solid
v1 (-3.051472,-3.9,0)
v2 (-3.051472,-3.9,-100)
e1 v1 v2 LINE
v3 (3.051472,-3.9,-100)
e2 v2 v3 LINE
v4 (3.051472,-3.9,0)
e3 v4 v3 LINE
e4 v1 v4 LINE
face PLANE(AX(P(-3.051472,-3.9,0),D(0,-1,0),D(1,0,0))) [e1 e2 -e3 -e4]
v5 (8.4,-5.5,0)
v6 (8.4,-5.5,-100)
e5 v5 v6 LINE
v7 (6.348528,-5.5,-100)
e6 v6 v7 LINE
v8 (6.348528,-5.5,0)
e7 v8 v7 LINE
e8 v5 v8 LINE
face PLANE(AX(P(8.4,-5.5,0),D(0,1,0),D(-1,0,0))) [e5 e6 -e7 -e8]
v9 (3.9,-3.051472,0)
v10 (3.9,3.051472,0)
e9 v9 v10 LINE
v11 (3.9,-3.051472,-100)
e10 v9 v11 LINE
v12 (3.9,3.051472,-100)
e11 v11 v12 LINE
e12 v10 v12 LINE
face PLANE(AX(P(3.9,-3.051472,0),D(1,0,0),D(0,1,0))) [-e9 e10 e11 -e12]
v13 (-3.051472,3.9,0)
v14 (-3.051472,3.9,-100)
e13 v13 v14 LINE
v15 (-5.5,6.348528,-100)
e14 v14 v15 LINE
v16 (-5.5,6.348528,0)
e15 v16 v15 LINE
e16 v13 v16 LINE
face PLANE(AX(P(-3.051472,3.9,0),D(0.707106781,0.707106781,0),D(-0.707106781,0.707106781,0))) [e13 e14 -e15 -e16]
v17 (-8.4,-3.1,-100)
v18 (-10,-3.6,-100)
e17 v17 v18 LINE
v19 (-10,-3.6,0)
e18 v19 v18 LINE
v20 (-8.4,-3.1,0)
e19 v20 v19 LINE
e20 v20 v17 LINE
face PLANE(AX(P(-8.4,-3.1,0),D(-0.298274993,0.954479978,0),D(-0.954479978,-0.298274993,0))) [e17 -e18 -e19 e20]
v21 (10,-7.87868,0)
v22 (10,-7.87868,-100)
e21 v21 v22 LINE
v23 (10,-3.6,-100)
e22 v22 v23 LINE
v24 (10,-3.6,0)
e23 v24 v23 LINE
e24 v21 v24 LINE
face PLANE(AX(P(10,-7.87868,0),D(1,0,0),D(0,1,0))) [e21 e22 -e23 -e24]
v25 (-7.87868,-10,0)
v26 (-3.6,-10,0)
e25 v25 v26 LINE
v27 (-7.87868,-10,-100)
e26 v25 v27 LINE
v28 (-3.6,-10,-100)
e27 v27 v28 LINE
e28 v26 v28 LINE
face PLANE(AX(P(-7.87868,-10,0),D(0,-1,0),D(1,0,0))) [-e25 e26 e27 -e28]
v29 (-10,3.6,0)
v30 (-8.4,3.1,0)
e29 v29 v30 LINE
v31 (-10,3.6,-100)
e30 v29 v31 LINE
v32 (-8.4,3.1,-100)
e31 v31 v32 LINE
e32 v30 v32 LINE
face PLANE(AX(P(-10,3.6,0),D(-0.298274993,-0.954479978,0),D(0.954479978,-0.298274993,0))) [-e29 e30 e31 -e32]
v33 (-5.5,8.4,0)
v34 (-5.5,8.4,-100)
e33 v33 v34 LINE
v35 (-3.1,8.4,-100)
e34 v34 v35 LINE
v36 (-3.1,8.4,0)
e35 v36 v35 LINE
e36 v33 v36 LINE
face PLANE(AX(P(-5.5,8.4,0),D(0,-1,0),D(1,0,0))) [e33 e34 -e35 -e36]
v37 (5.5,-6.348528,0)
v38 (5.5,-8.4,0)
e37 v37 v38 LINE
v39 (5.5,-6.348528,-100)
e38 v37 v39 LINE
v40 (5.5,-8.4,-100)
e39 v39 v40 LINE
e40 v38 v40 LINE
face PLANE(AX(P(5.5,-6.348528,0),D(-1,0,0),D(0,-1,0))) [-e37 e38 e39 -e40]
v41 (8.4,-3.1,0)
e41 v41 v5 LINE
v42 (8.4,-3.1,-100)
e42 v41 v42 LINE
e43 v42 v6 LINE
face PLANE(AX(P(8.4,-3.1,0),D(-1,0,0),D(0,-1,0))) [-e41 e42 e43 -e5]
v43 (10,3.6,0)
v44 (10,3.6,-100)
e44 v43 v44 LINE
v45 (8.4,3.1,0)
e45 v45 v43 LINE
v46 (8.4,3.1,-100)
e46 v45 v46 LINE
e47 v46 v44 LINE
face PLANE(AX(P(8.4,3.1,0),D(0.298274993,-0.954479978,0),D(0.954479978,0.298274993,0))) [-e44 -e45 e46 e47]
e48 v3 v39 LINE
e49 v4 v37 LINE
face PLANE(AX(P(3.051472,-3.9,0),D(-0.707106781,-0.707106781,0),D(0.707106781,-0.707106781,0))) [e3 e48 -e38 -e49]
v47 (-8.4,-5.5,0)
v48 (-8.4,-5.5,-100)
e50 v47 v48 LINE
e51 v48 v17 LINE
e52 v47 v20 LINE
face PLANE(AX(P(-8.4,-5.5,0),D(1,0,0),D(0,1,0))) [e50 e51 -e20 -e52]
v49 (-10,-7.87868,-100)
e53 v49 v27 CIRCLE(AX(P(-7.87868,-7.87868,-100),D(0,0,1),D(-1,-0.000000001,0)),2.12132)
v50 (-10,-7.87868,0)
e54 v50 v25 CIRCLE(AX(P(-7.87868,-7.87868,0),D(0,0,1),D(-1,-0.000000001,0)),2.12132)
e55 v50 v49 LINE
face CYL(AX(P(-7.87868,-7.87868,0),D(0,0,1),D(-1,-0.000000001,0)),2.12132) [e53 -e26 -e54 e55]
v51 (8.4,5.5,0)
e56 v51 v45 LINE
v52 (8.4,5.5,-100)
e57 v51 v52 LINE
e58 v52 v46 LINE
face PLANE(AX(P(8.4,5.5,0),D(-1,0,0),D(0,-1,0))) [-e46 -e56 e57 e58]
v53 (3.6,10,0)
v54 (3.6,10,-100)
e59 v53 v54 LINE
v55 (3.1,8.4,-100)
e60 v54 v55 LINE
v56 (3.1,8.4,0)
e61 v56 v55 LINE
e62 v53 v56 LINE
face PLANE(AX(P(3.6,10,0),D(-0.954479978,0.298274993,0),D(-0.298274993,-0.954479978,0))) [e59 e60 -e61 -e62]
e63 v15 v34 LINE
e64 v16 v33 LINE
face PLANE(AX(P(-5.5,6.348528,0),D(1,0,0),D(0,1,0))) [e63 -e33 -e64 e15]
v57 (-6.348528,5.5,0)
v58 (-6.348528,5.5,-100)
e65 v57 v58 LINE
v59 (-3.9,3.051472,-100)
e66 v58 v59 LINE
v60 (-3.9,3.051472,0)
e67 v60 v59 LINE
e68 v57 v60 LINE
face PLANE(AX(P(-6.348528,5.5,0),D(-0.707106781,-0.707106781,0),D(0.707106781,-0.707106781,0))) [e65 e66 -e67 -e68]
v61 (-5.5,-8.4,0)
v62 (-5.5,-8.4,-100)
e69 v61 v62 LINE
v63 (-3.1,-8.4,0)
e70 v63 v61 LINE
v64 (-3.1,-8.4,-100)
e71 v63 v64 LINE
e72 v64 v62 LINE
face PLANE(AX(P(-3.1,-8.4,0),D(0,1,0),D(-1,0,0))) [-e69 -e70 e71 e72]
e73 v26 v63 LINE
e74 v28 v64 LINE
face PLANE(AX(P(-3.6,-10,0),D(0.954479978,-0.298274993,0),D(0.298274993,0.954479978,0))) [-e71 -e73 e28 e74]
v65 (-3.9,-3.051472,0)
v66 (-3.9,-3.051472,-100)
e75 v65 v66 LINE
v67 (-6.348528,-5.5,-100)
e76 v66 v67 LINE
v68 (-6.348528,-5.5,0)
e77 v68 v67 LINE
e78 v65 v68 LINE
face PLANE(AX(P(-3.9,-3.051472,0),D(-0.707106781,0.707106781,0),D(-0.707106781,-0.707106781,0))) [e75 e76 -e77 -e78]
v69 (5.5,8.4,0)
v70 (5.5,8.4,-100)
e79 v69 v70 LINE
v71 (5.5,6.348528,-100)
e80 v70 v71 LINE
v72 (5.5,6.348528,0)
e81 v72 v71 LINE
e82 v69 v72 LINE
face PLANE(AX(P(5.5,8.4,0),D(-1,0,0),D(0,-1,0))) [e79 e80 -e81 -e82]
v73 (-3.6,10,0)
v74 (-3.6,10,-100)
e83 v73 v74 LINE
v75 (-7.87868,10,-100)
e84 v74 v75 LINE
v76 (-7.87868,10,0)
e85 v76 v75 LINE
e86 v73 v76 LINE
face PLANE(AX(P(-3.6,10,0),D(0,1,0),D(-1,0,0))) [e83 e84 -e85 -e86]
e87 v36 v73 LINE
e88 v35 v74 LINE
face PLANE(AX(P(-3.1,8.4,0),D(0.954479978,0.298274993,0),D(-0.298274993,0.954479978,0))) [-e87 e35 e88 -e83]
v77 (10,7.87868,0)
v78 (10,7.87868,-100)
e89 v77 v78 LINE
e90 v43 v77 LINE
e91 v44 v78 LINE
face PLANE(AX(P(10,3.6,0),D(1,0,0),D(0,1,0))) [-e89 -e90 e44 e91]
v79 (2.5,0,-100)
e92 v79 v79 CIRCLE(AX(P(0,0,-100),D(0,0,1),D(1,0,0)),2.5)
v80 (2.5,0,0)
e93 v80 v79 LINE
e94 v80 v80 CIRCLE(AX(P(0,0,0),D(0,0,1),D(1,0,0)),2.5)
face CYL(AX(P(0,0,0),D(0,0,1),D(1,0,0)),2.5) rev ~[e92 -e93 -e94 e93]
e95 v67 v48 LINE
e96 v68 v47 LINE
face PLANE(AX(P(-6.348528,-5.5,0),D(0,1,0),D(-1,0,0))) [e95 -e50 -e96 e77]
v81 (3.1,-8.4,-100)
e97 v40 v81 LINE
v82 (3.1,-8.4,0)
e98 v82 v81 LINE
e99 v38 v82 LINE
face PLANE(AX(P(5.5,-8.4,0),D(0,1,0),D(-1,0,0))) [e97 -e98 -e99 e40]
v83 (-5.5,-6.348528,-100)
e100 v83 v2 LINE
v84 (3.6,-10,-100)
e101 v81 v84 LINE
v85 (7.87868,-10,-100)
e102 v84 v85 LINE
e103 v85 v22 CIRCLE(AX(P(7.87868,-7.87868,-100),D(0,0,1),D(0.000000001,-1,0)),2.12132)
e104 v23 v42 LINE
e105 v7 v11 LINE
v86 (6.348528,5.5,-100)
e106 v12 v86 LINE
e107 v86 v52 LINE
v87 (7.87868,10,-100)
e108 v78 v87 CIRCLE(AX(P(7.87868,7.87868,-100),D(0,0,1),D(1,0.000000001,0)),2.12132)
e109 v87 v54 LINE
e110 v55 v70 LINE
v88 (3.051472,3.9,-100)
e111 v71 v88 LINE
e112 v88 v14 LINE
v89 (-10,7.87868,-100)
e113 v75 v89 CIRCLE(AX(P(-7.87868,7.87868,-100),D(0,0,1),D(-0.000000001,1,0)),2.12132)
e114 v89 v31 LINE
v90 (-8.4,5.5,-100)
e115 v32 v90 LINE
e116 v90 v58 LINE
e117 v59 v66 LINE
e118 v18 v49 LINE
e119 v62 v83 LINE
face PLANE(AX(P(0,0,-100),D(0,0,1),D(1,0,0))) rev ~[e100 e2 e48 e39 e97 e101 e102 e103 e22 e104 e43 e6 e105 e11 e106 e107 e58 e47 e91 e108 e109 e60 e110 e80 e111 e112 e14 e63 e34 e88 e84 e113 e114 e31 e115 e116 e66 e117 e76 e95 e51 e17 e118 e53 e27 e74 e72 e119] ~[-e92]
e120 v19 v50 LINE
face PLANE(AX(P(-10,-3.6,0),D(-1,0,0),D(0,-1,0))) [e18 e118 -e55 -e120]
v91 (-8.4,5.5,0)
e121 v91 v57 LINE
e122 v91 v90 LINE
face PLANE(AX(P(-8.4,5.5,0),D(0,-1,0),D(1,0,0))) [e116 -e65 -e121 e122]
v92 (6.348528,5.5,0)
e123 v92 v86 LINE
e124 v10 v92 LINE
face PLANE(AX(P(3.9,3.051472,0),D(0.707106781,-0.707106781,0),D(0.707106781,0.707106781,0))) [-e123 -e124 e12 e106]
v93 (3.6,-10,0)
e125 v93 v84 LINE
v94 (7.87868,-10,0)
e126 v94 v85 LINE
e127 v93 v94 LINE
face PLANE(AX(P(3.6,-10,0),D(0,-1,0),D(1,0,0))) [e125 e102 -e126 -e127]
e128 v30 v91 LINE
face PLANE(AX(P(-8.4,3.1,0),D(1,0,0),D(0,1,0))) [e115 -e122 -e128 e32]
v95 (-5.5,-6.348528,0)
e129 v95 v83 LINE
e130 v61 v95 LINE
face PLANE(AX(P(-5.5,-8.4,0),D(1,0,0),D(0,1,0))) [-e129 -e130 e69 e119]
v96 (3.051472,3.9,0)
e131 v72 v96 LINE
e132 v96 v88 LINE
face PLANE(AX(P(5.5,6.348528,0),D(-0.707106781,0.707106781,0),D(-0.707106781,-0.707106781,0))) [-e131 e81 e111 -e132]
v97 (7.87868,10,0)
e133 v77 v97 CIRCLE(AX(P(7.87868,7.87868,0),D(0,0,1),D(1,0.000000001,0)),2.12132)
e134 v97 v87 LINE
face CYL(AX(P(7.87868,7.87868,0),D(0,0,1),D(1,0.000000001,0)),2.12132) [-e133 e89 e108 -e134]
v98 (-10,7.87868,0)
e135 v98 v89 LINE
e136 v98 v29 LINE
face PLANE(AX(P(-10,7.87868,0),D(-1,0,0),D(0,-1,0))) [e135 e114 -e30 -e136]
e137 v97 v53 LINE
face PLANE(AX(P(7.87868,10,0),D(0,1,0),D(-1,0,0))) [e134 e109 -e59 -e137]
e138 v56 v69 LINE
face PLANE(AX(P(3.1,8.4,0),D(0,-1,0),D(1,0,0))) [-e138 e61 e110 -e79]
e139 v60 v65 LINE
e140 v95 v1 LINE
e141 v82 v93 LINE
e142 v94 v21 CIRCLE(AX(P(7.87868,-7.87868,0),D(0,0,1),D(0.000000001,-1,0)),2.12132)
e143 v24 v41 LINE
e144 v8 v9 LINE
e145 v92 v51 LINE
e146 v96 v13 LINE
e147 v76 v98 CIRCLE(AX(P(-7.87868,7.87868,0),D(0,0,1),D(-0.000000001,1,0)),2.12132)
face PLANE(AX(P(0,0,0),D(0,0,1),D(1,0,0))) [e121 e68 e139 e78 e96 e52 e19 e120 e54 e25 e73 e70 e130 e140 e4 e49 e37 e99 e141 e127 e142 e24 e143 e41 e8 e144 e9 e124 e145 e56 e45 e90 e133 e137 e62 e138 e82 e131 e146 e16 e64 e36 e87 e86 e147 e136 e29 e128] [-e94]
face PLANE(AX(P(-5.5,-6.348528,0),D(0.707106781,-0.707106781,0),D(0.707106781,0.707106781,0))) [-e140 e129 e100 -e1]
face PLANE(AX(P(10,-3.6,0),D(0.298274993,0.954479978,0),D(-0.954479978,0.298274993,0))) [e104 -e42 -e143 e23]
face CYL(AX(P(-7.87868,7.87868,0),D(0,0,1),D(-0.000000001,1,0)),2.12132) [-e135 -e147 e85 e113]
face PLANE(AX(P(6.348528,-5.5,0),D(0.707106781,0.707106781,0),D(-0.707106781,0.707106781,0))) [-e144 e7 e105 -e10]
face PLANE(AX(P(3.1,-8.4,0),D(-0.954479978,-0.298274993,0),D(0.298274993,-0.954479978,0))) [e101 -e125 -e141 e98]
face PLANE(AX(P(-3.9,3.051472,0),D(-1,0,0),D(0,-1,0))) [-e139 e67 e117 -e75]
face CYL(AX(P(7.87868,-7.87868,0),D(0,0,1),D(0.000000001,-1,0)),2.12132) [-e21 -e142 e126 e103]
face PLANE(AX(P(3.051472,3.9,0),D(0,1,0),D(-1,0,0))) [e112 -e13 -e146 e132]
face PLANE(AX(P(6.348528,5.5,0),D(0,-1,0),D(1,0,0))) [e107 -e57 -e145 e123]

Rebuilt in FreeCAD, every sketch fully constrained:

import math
import FreeCAD as App
import Part
import Sketcher

V = App.Vector
Q = App.Units.Quantity

doc = App.newDocument("Part")
body = doc.addObject("PartDesign::Body", "Body")

# Sketch on XY plane
sketch1 = body.newObject("Sketcher::SketchObject", "Sketch")
sketch1.AttachmentSupport = (doc.getObject("XY_Plane"), [""])
sketch1.MapMode = "FlatFace"
sketch1.addGeometry([
    Part.ArcOfCircle(Part.Circle(V(-7.87868, 7.87868, 0), V(0, 0, 1), 2.12132), math.radians(90), math.radians(180)),  # 0
    Part.LineSegment(V(-10, 7.87868, 0), V(-10, 3.6, 0)),  # 1
    Part.LineSegment(V(-10, 3.6, 0), V(-8.4, 3.1, 0)),  # 2
    Part.LineSegment(V(-8.4, 3.1, 0), V(-8.4, 5.5, 0)),  # 3
    Part.LineSegment(V(-8.4, 5.5, 0), V(-6.348528, 5.5, 0)),  # 4
    Part.LineSegment(V(-6.348528, 5.5, 0), V(-3.9, 3.051472, 0)),  # 5
    Part.LineSegment(V(-3.9, 3.051472, 0), V(-3.9, -3.051472, 0)),  # 6
    Part.LineSegment(V(-3.9, -3.051472, 0), V(-6.348528, -5.5, 0)),  # 7
    Part.LineSegment(V(-6.348528, -5.5, 0), V(-8.4, -5.5, 0)),  # 8
    Part.LineSegment(V(-8.4, -5.5, 0), V(-8.4, -3.1, 0)),  # 9
    Part.LineSegment(V(-8.4, -3.1, 0), V(-10, -3.6, 0)),  # 10
    Part.LineSegment(V(-10, -3.6, 0), V(-10, -7.87868, 0)),  # 11
    Part.ArcOfCircle(Part.Circle(V(-7.87868, -7.87868, 0), V(0, 0, 1), 2.12132), math.radians(-180), math.radians(-90)),  # 12
    Part.LineSegment(V(-7.87868, -10, 0), V(-3.6, -10, 0)),  # 13
    Part.LineSegment(V(-3.6, -10, 0), V(-3.1, -8.4, 0)),  # 14
    Part.LineSegment(V(-3.1, -8.4, 0), V(-5.5, -8.4, 0)),  # 15
    Part.LineSegment(V(-5.5, -8.4, 0), V(-5.5, -6.348528, 0)),  # 16
    Part.LineSegment(V(-5.5, -6.348528, 0), V(-3.051472, -3.9, 0)),  # 17
    Part.LineSegment(V(-3.051472, -3.9, 0), V(3.051472, -3.9, 0)),  # 18
    Part.LineSegment(V(3.051472, -3.9, 0), V(5.5, -6.348528, 0)),  # 19
    Part.LineSegment(V(5.5, -6.348528, 0), V(5.5, -8.4, 0)),  # 20
    Part.LineSegment(V(5.5, -8.4, 0), V(3.1, -8.4, 0)),  # 21
    Part.LineSegment(V(3.1, -8.4, 0), V(3.6, -10, 0)),  # 22
    Part.LineSegment(V(3.6, -10, 0), V(7.87868, -10, 0)),  # 23
    Part.ArcOfCircle(Part.Circle(V(7.87868, -7.87868, 0), V(0, 0, 1), 2.12132), math.radians(-90), math.radians(0)),  # 24
    Part.LineSegment(V(10, -7.87868, 0), V(10, -3.6, 0)),  # 25
    Part.LineSegment(V(10, -3.6, 0), V(8.4, -3.1, 0)),  # 26
    Part.LineSegment(V(8.4, -3.1, 0), V(8.4, -5.5, 0)),  # 27
    Part.LineSegment(V(8.4, -5.5, 0), V(6.348528, -5.5, 0)),  # 28
    Part.LineSegment(V(6.348528, -5.5, 0), V(3.9, -3.051472, 0)),  # 29
    Part.LineSegment(V(3.9, -3.051472, 0), V(3.9, 3.051472, 0)),  # 30
    Part.LineSegment(V(3.9, 3.051472, 0), V(6.348528, 5.5, 0)),  # 31
    Part.LineSegment(V(6.348528, 5.5, 0), V(8.4, 5.5, 0)),  # 32
    Part.LineSegment(V(8.4, 5.5, 0), V(8.4, 3.1, 0)),  # 33
    Part.LineSegment(V(8.4, 3.1, 0), V(10, 3.6, 0)),  # 34
    Part.LineSegment(V(10, 3.6, 0), V(10, 7.87868, 0)),  # 35
    Part.ArcOfCircle(Part.Circle(V(7.87868, 7.87868, 0), V(0, 0, 1), 2.12132), math.radians(0), math.radians(90)),  # 36
    Part.LineSegment(V(7.87868, 10, 0), V(3.6, 10, 0)),  # 37
    Part.LineSegment(V(3.6, 10, 0), V(3.1, 8.4, 0)),  # 38
    Part.LineSegment(V(3.1, 8.4, 0), V(5.5, 8.4, 0)),  # 39
    Part.LineSegment(V(5.5, 8.4, 0), V(5.5, 6.348528, 0)),  # 40
    Part.LineSegment(V(5.5, 6.348528, 0), V(3.051472, 3.9, 0)),  # 41
    Part.LineSegment(V(3.051472, 3.9, 0), V(-3.051472, 3.9, 0)),  # 42
    Part.LineSegment(V(-3.051472, 3.9, 0), V(-5.5, 6.348528, 0)),  # 43
    Part.LineSegment(V(-5.5, 6.348528, 0), V(-5.5, 8.4, 0)),  # 44
    Part.LineSegment(V(-5.5, 8.4, 0), V(-3.1, 8.4, 0)),  # 45
    Part.LineSegment(V(-3.1, 8.4, 0), V(-3.6, 10, 0)),  # 46
    Part.LineSegment(V(-3.6, 10, 0), V(-7.87868, 10, 0)),  # 47
    Part.Circle(V(0, 0, 0), V(0, 0, 1), 2.5),  # 48
], False)
sketch1.addConstraint([
    Sketcher.Constraint("Tangent", 0, 2, 1, 1),
    Sketcher.Constraint("Coincident", 1, 2, 2, 1),
    Sketcher.Constraint("Coincident", 2, 2, 3, 1),
    Sketcher.Constraint("Coincident", 3, 2, 4, 1),
    Sketcher.Constraint("Coincident", 4, 2, 5, 1),
    Sketcher.Constraint("Coincident", 5, 2, 6, 1),
    Sketcher.Constraint("Coincident", 6, 2, 7, 1),
    Sketcher.Constraint("Coincident", 7, 2, 8, 1),
    Sketcher.Constraint("Coincident", 8, 2, 9, 1),
    Sketcher.Constraint("Coincident", 9, 2, 10, 1),
    Sketcher.Constraint("Coincident", 10, 2, 11, 1),
    Sketcher.Constraint("Tangent", 11, 2, 12, 1),
    Sketcher.Constraint("Tangent", 12, 2, 13, 1),
    Sketcher.Constraint("Coincident", 13, 2, 14, 1),
    Sketcher.Constraint("Coincident", 14, 2, 15, 1),
    Sketcher.Constraint("Coincident", 15, 2, 16, 1),
    Sketcher.Constraint("Coincident", 16, 2, 17, 1),
    Sketcher.Constraint("Coincident", 17, 2, 18, 1),
    Sketcher.Constraint("Coincident", 18, 2, 19, 1),
    Sketcher.Constraint("Coincident", 19, 2, 20, 1),
    Sketcher.Constraint("Coincident", 20, 2, 21, 1),
    Sketcher.Constraint("Coincident", 21, 2, 22, 1),
    Sketcher.Constraint("Coincident", 22, 2, 23, 1),
    Sketcher.Constraint("Tangent", 23, 2, 24, 1),
    Sketcher.Constraint("Tangent", 24, 2, 25, 1),
    Sketcher.Constraint("Coincident", 25, 2, 26, 1),
    Sketcher.Constraint("Coincident", 26, 2, 27, 1),
    Sketcher.Constraint("Coincident", 27, 2, 28, 1),
    Sketcher.Constraint("Coincident", 28, 2, 29, 1),
    Sketcher.Constraint("Coincident", 29, 2, 30, 1),
    Sketcher.Constraint("Coincident", 30, 2, 31, 1),
    Sketcher.Constraint("Coincident", 31, 2, 32, 1),
    Sketcher.Constraint("Coincident", 32, 2, 33, 1),
    Sketcher.Constraint("Coincident", 33, 2, 34, 1),
    Sketcher.Constraint("Coincident", 34, 2, 35, 1),
    Sketcher.Constraint("Tangent", 35, 2, 36, 1),
    Sketcher.Constraint("Tangent", 36, 2, 37, 1),
    Sketcher.Constraint("Coincident", 37, 2, 38, 1),
    Sketcher.Constraint("Coincident", 38, 2, 39, 1),
    Sketcher.Constraint("Coincident", 39, 2, 40, 1),
    Sketcher.Constraint("Coincident", 40, 2, 41, 1),
    Sketcher.Constraint("Coincident", 41, 2, 42, 1),
    Sketcher.Constraint("Coincident", 42, 2, 43, 1),
    Sketcher.Constraint("Coincident", 43, 2, 44, 1),
    Sketcher.Constraint("Coincident", 44, 2, 45, 1),
    Sketcher.Constraint("Coincident", 45, 2, 46, 1),
    Sketcher.Constraint("Coincident", 46, 2, 47, 1),
    Sketcher.Constraint("Tangent", 47, 2, 0, 1),
    Sketcher.Constraint("Vertical", 1),
    Sketcher.Constraint("Vertical", 3),
    Sketcher.Constraint("Horizontal", 4),
    Sketcher.Constraint("Vertical", 6),
    Sketcher.Constraint("Horizontal", 8),
    Sketcher.Constraint("Vertical", 9),
    Sketcher.Constraint("Vertical", 11),
    Sketcher.Constraint("Horizontal", 13),
    Sketcher.Constraint("Horizontal", 15),
    Sketcher.Constraint("Vertical", 16),
    Sketcher.Constraint("Horizontal", 18),
    Sketcher.Constraint("Vertical", 20),
    Sketcher.Constraint("Horizontal", 21),
    Sketcher.Constraint("Horizontal", 23),
    Sketcher.Constraint("Vertical", 25),
    Sketcher.Constraint("Vertical", 27),
    Sketcher.Constraint("Horizontal", 28),
    Sketcher.Constraint("Vertical", 30),
    Sketcher.Constraint("Horizontal", 32),
    Sketcher.Constraint("Vertical", 33),
    Sketcher.Constraint("Vertical", 35),
    Sketcher.Constraint("Horizontal", 37),
    Sketcher.Constraint("Horizontal", 39),
    Sketcher.Constraint("Vertical", 40),
    Sketcher.Constraint("Horizontal", 42),
    Sketcher.Constraint("Vertical", 44),
    Sketcher.Constraint("Horizontal", 45),
    Sketcher.Constraint("Horizontal", 47),
    Sketcher.Constraint("Coincident", 48, 3, -1, 1),
    Sketcher.Constraint("Equal", 0, 12),
    Sketcher.Constraint("Equal", 12, 24),
    Sketcher.Constraint("Equal", 24, 36),
    Sketcher.Constraint("Symmetric", 0, 3, 24, 3, -1, 1),
    Sketcher.Constraint("Symmetric", 12, 3, 36, 3, -1, 1),
    Sketcher.Constraint("Symmetric", 2, 2, 26, 2, -1, 1),
    Sketcher.Constraint("Symmetric", 4, 2, 28, 2, -1, 1),
    Sketcher.Constraint("Symmetric", 5, 2, 29, 2, -1, 1),
    Sketcher.Constraint("Symmetric", 7, 2, 31, 2, -1, 1),
    Sketcher.Constraint("Symmetric", 9, 2, 33, 2, -1, 1),
    Sketcher.Constraint("Symmetric", 14, 2, 38, 2, -1, 1),
    Sketcher.Constraint("Symmetric", 16, 2, 40, 2, -1, 1),
    Sketcher.Constraint("Symmetric", 17, 2, 41, 2, -1, 1),
    Sketcher.Constraint("Symmetric", 19, 2, 43, 2, -1, 1),
    Sketcher.Constraint("Symmetric", 21, 2, 45, 2, -1, 1),
    Sketcher.Constraint("Symmetric", 12, 3, 24, 3, -2),
    Sketcher.Constraint("Symmetric", 16, 2, 19, 2, -2),
    Sketcher.Constraint("Symmetric", 14, 2, 21, 2, -2),
    Sketcher.Constraint("Symmetric", 9, 2, 26, 2, -2),
    Sketcher.Constraint("Symmetric", 7, 2, 28, 2, -2),
    Sketcher.Constraint("Perpendicular", 5, 7),
    Sketcher.Constraint("Perpendicular", 2, 14),
    Sketcher.Constraint("Parallel", 7, 17),
    Sketcher.Constraint("Perpendicular", 17, 19),
    Sketcher.Constraint("Perpendicular", 10, 22),
    Sketcher.Constraint("Perpendicular", 14, 26),
    Sketcher.Constraint("Perpendicular", 29, 31),
    Sketcher.Constraint("Perpendicular", 22, 34),
    Sketcher.Constraint("Perpendicular", 26, 38),
    Sketcher.Constraint("Perpendicular", 41, 43),
    Sketcher.Constraint("Perpendicular", 34, 46),
    Sketcher.Constraint("Horizontal", 10, 2, 25, 2),
    Sketcher.Constraint("Horizontal", 6, 2, 29, 2),
    Sketcher.Constraint("Equal", 47, 1),
    Sketcher.Constraint("Equal", 45, 3),
    Sketcher.Constraint("Equal", 42, 6),
    Sketcher.Constraint("Equal", 32, 16),
    Sketcher.Constraint("Equal", 10, 14),
    Sketcher.Constraint("Equal", 7, 17),
    Sketcher.Constraint("Diameter", 48, Q("5 mm")),
    Sketcher.Constraint("DistanceX", 15, 2, 15, 1, Q("2.4 mm")),
    Sketcher.Constraint("DistanceX", 0, 2, -1, 1, Q("10 mm")),
    Sketcher.Constraint("DistanceY", -1, 1, 1, 2, Q("3.6 mm")),
    Sketcher.Constraint("DistanceX", 2, 2, -1, 1, Q("8.4 mm")),
    Sketcher.Constraint("DistanceY", -1, 1, 2, 2, Q("3.1 mm")),
    Sketcher.Constraint("DistanceX", 5, 2, -1, 1, Q("3.9 mm")),
    Sketcher.Constraint("Radius", 0, Q("2.12132 mm")),
    Sketcher.Constraint("DistanceX", 4, 1, 4, 2, Q("2.051472 mm")),
])
pad1 = body.newObject("PartDesign::Pad", "Pad")
pad1.Profile = sketch1
pad1.Length = 100
pad1.Reversed = True

doc.recompute()
